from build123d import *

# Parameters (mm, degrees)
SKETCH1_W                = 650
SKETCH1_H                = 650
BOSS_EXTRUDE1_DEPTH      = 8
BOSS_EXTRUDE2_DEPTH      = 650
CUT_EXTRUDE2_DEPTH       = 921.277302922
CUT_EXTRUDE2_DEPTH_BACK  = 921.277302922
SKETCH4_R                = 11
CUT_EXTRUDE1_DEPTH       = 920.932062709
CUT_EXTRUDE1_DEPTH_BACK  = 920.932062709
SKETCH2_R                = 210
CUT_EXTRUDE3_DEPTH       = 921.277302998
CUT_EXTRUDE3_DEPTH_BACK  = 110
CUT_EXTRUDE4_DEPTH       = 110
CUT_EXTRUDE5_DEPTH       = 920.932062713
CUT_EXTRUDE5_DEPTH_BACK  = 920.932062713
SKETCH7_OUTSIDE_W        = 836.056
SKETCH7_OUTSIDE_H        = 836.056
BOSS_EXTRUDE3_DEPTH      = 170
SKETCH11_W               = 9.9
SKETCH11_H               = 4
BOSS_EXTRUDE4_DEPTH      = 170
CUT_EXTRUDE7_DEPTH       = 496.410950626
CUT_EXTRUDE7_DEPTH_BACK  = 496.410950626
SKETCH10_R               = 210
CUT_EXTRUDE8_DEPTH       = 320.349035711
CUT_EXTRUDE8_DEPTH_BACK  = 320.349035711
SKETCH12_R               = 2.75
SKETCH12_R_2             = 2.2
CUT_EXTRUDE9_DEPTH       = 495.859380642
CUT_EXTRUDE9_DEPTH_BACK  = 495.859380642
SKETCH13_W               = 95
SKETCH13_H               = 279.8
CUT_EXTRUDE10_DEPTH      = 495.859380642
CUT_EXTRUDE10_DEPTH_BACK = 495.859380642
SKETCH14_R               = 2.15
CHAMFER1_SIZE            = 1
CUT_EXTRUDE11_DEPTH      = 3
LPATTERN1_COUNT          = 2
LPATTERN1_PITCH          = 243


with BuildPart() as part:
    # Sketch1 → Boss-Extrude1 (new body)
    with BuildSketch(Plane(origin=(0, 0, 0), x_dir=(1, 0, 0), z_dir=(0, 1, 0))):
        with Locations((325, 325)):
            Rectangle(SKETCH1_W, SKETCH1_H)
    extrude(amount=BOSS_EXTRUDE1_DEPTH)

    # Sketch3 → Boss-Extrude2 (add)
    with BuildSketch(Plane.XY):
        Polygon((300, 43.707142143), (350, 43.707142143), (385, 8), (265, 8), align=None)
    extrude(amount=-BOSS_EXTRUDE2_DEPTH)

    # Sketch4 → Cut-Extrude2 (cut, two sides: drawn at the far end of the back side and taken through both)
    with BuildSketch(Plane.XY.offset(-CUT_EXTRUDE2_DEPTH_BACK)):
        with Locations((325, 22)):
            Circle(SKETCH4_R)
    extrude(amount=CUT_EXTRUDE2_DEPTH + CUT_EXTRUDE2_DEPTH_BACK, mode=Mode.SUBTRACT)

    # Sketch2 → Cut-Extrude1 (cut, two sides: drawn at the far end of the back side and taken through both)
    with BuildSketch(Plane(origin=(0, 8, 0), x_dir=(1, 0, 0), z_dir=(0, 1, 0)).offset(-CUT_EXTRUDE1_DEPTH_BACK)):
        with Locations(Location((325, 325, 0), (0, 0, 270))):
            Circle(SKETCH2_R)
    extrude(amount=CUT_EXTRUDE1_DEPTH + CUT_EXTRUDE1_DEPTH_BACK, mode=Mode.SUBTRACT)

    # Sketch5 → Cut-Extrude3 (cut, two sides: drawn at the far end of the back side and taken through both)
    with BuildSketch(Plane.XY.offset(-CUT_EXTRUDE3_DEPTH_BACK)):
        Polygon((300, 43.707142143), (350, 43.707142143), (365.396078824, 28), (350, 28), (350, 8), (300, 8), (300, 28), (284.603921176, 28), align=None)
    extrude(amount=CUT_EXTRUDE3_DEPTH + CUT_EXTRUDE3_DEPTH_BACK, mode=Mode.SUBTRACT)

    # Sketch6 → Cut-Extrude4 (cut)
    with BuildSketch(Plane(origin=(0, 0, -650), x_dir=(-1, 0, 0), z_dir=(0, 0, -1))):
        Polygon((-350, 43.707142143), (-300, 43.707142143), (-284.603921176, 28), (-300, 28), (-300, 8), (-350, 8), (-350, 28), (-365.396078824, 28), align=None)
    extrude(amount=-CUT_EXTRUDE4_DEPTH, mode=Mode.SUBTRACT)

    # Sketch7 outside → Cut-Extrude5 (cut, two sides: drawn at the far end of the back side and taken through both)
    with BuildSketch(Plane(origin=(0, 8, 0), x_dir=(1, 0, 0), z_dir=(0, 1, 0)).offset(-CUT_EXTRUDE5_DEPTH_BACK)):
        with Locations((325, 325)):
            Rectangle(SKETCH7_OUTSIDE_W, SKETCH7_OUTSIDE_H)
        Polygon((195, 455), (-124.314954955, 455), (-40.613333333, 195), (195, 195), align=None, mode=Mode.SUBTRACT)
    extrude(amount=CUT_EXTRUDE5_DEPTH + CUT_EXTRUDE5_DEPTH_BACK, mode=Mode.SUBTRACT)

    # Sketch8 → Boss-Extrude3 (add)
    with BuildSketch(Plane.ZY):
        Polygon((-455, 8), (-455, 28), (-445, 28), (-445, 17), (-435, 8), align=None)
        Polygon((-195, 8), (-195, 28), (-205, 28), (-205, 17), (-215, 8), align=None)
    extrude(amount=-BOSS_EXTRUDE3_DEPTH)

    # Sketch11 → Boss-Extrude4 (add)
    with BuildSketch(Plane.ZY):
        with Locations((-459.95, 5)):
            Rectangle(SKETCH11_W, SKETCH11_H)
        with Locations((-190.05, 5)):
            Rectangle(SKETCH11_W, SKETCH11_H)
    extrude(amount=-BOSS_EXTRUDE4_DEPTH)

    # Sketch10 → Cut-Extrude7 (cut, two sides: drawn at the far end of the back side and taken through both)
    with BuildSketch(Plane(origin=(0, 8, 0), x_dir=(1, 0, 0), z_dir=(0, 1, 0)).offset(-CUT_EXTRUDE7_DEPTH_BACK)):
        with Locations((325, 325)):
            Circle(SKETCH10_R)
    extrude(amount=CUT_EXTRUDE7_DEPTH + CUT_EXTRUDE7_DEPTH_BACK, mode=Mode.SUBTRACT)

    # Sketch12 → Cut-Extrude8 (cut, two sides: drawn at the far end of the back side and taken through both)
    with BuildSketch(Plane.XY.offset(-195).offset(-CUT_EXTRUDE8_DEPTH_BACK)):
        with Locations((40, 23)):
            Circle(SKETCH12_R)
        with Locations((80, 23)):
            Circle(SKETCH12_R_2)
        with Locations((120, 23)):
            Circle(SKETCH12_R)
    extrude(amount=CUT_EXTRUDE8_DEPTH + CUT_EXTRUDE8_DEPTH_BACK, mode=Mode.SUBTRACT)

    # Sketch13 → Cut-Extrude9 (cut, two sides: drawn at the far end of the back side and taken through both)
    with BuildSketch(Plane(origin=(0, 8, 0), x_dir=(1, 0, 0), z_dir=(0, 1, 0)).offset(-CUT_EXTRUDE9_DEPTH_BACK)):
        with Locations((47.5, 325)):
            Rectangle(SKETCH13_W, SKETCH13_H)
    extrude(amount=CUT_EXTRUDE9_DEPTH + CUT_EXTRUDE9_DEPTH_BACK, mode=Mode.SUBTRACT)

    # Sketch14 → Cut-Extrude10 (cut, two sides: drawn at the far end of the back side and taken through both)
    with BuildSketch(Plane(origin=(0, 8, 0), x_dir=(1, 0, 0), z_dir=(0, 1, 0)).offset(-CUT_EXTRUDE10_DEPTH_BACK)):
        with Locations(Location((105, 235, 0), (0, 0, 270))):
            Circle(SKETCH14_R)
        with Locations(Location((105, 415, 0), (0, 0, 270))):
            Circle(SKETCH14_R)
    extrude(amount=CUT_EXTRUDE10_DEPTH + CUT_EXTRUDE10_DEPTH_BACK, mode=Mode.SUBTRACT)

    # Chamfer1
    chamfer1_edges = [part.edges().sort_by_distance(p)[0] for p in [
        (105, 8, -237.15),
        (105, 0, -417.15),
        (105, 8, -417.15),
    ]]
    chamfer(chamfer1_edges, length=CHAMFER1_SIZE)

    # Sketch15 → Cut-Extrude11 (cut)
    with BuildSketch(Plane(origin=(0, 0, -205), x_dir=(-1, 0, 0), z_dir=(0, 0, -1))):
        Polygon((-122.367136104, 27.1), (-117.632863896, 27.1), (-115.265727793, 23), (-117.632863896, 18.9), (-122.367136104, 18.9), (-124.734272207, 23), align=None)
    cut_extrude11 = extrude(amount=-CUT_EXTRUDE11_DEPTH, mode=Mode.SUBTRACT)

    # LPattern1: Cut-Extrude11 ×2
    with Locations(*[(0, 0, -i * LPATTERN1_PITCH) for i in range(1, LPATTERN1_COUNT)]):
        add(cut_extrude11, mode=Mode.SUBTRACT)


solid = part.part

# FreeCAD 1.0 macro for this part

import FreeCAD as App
import Part
import Sketcher
Q = App.Units.Quantity


def edges_at(feature, points):
    """Names of the edges that pass closest to the given points."""
    edges = feature.Shape.Edges
    near = lambda p: min(range(len(edges)), key=lambda i: edges[i].distToShape(Part.Vertex(*p))[0])
    return sorted({f"Edge{near(p) + 1}" for p in points})


def add_polygon(sketch, points):
    """Adds a closed chain of lines whose ends are joined by coincident constraints."""
    first, n = sketch.GeometryCount, len(points)
    for a, b in zip(points, points[1:] + points[:1]):
        sketch.addGeometry(Part.LineSegment(App.Vector(*a, 0), App.Vector(*b, 0)), False)
    for i in range(n):
        sketch.addConstraint(Sketcher.Constraint("Coincident", first + i, 2, first + (i + 1) % n, 1))

doc = App.newDocument("Part")
params = doc.addObject("Spreadsheet::Sheet", "Params")
for row, (alias, value) in enumerate([
    ("sketch1_width", "650 mm"),
    ("pad1_length", "8 mm"),
    ("sketch2_width", "50 mm"),
    ("sketch2_width2", "120 mm"),
    ("sketch2_length", "50 mm"),
    ("pad2_length", "650 mm"),
    ("sketch3_diameter", "22 mm"),
    ("sketch4_diameter", "420 mm"),
    ("sketch5_width", "50 mm"),
    ("sketch5_height", "20 mm"),
    ("pocket3_length", "921.277303 mm"),
    ("pocket3_length2", "110 mm"),
    ("sketch6_width", "50 mm"),
    ("sketch6_height", "20 mm"),
    ("pocket4_length", "110 mm"),
    ("sketch7_height", "260 mm"),
    ("sketch8_width", "20 mm"),
    ("sketch8_width2", "11 mm"),
    ("sketch8_height", "10 mm"),
    ("pad3_length", "170 mm"),
    ("sketch9_width", "4 mm"),
    ("sketch9_height", "9.9 mm"),
    ("pad4_length", "170 mm"),
    ("sketch10_diameter", "420 mm"),
    ("sketch11_diameter", "5.5 mm"),
    ("sketch11_diameter2", "4.4 mm"),
    ("sketch12_width", "95 mm"),
    ("sketch12_height", "279.8 mm"),
    ("sketch13_diameter", "4.3 mm"),
    ("chamfer_size", "1 mm"),
    ("pocket10_length", "3 mm"),
    ("linearpattern_pitch", "243 mm"),
], start=1):
    params.set(f"A{row}", alias)
    params.set(f"B{row}", "=" + value)
    params.setAlias(f"B{row}", alias)

body = doc.addObject("PartDesign::Body", "Body")

sketch1 = doc.addObject("Sketcher::SketchObject", "Sketch")
body.addObject(sketch1)
sketch1.AttachmentSupport = (doc.XZ_Plane, [""])
sketch1.MapMode = "FlatFace"
add_polygon(sketch1, [(0, -650), (0, 0), (650, 0), (650, -650)])
sketch1.addConstraint([
    Sketcher.Constraint("Vertical", 0),
    Sketcher.Constraint("Horizontal", 1),
    Sketcher.Constraint("Vertical", 2),
    Sketcher.Constraint("Horizontal", 3),
    Sketcher.Constraint("Coincident", 0, 2, -1, 1),
    Sketcher.Constraint("Equal", 3, 0),
    Sketcher.Constraint("DistanceX", 1, 1, 1, 2, Q("650 mm")),
])
sketch1.setExpression("Constraints[10]", "Params.sketch1_width")
pad1 = doc.addObject("PartDesign::Pad", "Pad")
body.addObject(pad1)
pad1.Profile = sketch1
pad1.setExpression("Length", "Params.pad1_length")
pad1.Reversed = True

sketch2 = doc.addObject("Sketcher::SketchObject", "Sketch001")
body.addObject(sketch2)
sketch2.AttachmentSupport = (doc.XY_Plane, [""])
sketch2.MapMode = "FlatFace"
add_polygon(sketch2, [(350, 44), (300, 44), (265, 8), (385, 8)])
sketch2.addConstraint([
    Sketcher.Constraint("Horizontal", 0),
    Sketcher.Constraint("Horizontal", 2),
    Sketcher.Constraint("Equal", 1, 3),
    Sketcher.Constraint("DistanceX", 0, 2, 0, 1, Q("50 mm")),
    Sketcher.Constraint("DistanceX", 2, 1, 2, 2, Q("120 mm")),
    Sketcher.Constraint("Distance", 1, Q("50 mm")),
    Sketcher.Constraint("DistanceX", -1, 1, 0, 2, Q("300 mm")),
    Sketcher.Constraint("DistanceY", -1, 1, 1, 2, Q("8 mm")),
])
sketch2.setExpression("Constraints[7]", "Params.sketch2_width")
sketch2.setExpression("Constraints[8]", "Params.sketch2_width2")
sketch2.setExpression("Constraints[9]", "Params.sketch2_length")
pad2 = doc.addObject("PartDesign::Pad", "Pad001")
body.addObject(pad2)
pad2.Profile = sketch2
pad2.setExpression("Length", "Params.pad2_length")
pad2.Reversed = True

sketch3 = doc.addObject("Sketcher::SketchObject", "Sketch002")
body.addObject(sketch3)
sketch3.AttachmentSupport = (doc.XY_Plane, [""])
sketch3.MapMode = "FlatFace"
sketch3.addGeometry(Part.Circle(App.Vector(325, 22, 0), App.Vector(0, 0, 1), 11), False)
sketch3.addConstraint([
    Sketcher.Constraint("Diameter", 0, Q("22 mm")),
    Sketcher.Constraint("DistanceX", -1, 1, 0, 3, Q("325 mm")),
    Sketcher.Constraint("DistanceY", -1, 1, 0, 3, Q("22 mm")),
])
sketch3.setExpression("Constraints[0]", "Params.sketch3_diameter")
pocket1 = doc.addObject("PartDesign::Pocket", "Pocket")
body.addObject(pocket1)
pocket1.Profile = sketch3
pocket1.Type = "ThroughAll"
pocket1.Midplane = True

sketch4 = doc.addObject("Sketcher::SketchObject", "Sketch003")
body.addObject(sketch4)
sketch4.AttachmentSupport = (doc.XZ_Plane, [""])
sketch4.MapMode = "FlatFace"
sketch4.AttachmentOffset = App.Placement(App.Vector(0, 0, -8), App.Rotation())
sketch4.addGeometry(Part.Circle(App.Vector(325, -325, 0), App.Vector(0, 0, 1), 210), False)
sketch4.addConstraint([
    Sketcher.Constraint("Diameter", 0, Q("420 mm")),
    Sketcher.Constraint("DistanceX", -1, 1, 0, 3, Q("325 mm")),
    Sketcher.Constraint("DistanceY", 0, 3, -1, 1, Q("325 mm")),
])
sketch4.setExpression("Constraints[0]", "Params.sketch4_diameter")
pocket2 = doc.addObject("PartDesign::Pocket", "Pocket001")
body.addObject(pocket2)
pocket2.Profile = sketch4
pocket2.Type = "ThroughAll"
pocket2.Midplane = True

sketch5 = doc.addObject("Sketcher::SketchObject", "Sketch004")
body.addObject(sketch5)
sketch5.AttachmentSupport = (doc.XY_Plane, [""])
sketch5.MapMode = "FlatFace"
add_polygon(sketch5, [(350, 44), (300, 44), (285, 28), (300, 28), (300, 8), (350, 8), (350, 28), (365, 28)])
sketch5.addConstraint([
    Sketcher.Constraint("Horizontal", 0),
    Sketcher.Constraint("Horizontal", 2),
    Sketcher.Constraint("Vertical", 3),
    Sketcher.Constraint("Horizontal", 4),
    Sketcher.Constraint("Vertical", 5),
    Sketcher.Constraint("Horizontal", 6),
    Sketcher.Constraint("Horizontal", 2, 2, 5, 2),
    Sketcher.Constraint("Vertical", 0, 2, 2, 2),
    Sketcher.Constraint("Vertical", 5, 2, 7, 2),
    Sketcher.Constraint("Equal", 2, 6),
    Sketcher.Constraint("DistanceX", 0, 2, 0, 1, Q("50 mm")),
    Sketcher.Constraint("DistanceY", 3, 2, 3, 1, Q("20 mm")),
    Sketcher.Constraint("DistanceX", -1, 1, 0, 2, Q("300 mm")),
    Sketcher.Constraint("DistanceY", -1, 1, 1, 2, Q("28 mm")),
    Sketcher.Constraint("Distance", 1, Q("21.994398 mm")),
    Sketcher.Constraint("DistanceX", 2, 1, 2, 2, Q("15.396079 mm")),
])
sketch5.setExpression("Constraints[18]", "Params.sketch5_width")
sketch5.setExpression("Constraints[19]", "Params.sketch5_height")
pocket3 = doc.addObject("PartDesign::Pocket", "Pocket002")
body.addObject(pocket3)
pocket3.Profile = sketch5
pocket3.Type = "TwoLengths"
pocket3.setExpression("Length", "Params.pocket3_length")
pocket3.setExpression("Length2", "Params.pocket3_length2")
pocket3.Reversed = True

sketch6 = doc.addObject("Sketcher::SketchObject", "Sketch005")
body.addObject(sketch6)
sketch6.AttachmentSupport = (doc.XY_Plane, [""])
sketch6.MapMode = "FlatFace"
sketch6.AttachmentOffset = App.Placement(App.Vector(0, 0, -650), App.Rotation())
add_polygon(sketch6, [(300, 44), (350, 44), (365, 28), (350, 28), (350, 8), (300, 8), (300, 28), (285, 28)])
sketch6.addConstraint([
    Sketcher.Constraint("Horizontal", 0),
    Sketcher.Constraint("Horizontal", 2),
    Sketcher.Constraint("Vertical", 3),
    Sketcher.Constraint("Horizontal", 4),
    Sketcher.Constraint("Vertical", 5),
    Sketcher.Constraint("Horizontal", 6),
    Sketcher.Constraint("Horizontal", 2, 2, 5, 2),
    Sketcher.Constraint("Vertical", 0, 2, 2, 2),
    Sketcher.Constraint("Vertical", 5, 2, 7, 2),
    Sketcher.Constraint("Equal", 2, 6),
    Sketcher.Constraint("DistanceX", 0, 1, 0, 2, Q("50 mm")),
    Sketcher.Constraint("DistanceY", 3, 2, 3, 1, Q("20 mm")),
    Sketcher.Constraint("DistanceX", -1, 1, 0, 2, Q("350 mm")),
    Sketcher.Constraint("DistanceY", -1, 1, 1, 2, Q("28 mm")),
    Sketcher.Constraint("Distance", 1, Q("21.994398 mm")),
    Sketcher.Constraint("DistanceX", 2, 2, 2, 1, Q("15.396079 mm")),
])
sketch6.setExpression("Constraints[18]", "Params.sketch6_width")
sketch6.setExpression("Constraints[19]", "Params.sketch6_height")
pocket4 = doc.addObject("PartDesign::Pocket", "Pocket003")
body.addObject(pocket4)
pocket4.Profile = sketch6
pocket4.setExpression("Length", "Params.pocket4_length")
pocket4.Reversed = True

sketch7 = doc.addObject("Sketcher::SketchObject", "Sketch006")
body.addObject(sketch7)
sketch7.AttachmentSupport = (doc.XZ_Plane, [""])
sketch7.MapMode = "FlatFace"
sketch7.AttachmentOffset = App.Placement(App.Vector(0, 0, -8), App.Rotation())
add_polygon(sketch7, [(-93, -358), (-93, 93), (743, 93), (743, -743), (-93, -743), (-93, -455), (195, -455), (195, -195), (-41, -195)])
sketch7.addConstraint([
    Sketcher.Constraint("Vertical", 0),
    Sketcher.Constraint("Horizontal", 1),
    Sketcher.Constraint("Vertical", 2),
    Sketcher.Constraint("Horizontal", 3),
    Sketcher.Constraint("Vertical", 4),
    Sketcher.Constraint("Horizontal", 5),
    Sketcher.Constraint("Vertical", 6),
    Sketcher.Constraint("Horizontal", 7),
    Sketcher.Constraint("Vertical", 0, 2, 3, 2),
    Sketcher.Constraint("Equal", 3, 2),
    Sketcher.Constraint("Equal", 5, 4),
    Sketcher.Constraint("DistanceY", 6, 1, 6, 2, Q("260 mm")),
    Sketcher.Constraint("DistanceY", 4, 2, -1, 1, Q("455 mm")),
    Sketcher.Constraint("DistanceX", -1, 1, 5, 2, Q("195 mm")),
    Sketcher.Constraint("DistanceX", 1, 1, 1, 2, Q("836.056 mm")),
    Sketcher.Constraint("DistanceX", 5, 1, 5, 2, Q("288.028 mm")),
    Sketcher.Constraint("DistanceY", 0, 1, 0, 2, Q("450.842209 mm")),
    Sketcher.Constraint("DistanceX", 7, 2, 7, 1, Q("235.613333 mm")),
])
sketch7.setExpression("Constraints[20]", "Params.sketch7_height")
pocket5 = doc.addObject("PartDesign::Pocket", "Pocket004")
body.addObject(pocket5)
pocket5.Profile = sketch7
pocket5.Type = "ThroughAll"
pocket5.Midplane = True

sketch8 = doc.addObject("Sketcher::SketchObject", "Sketch007")
body.addObject(sketch8)
sketch8.AttachmentSupport = (doc.YZ_Plane, [""])
sketch8.MapMode = "FlatFace"
add_polygon(sketch8, [(28, -455), (8, -455), (8, -435), (17, -445), (28, -445)])
add_polygon(sketch8, [(8, -195), (28, -195), (28, -205), (17, -205), (8, -215)])
sketch8.addConstraint([
    Sketcher.Constraint("Horizontal", 0),
    Sketcher.Constraint("Vertical", 1),
    Sketcher.Constraint("Horizontal", 3),
    Sketcher.Constraint("Vertical", 4),
    Sketcher.Constraint("Horizontal", 5),
    Sketcher.Constraint("Vertical", 6),
    Sketcher.Constraint("Horizontal", 7),
    Sketcher.Constraint("Vertical", 9),
    Sketcher.Constraint("Vertical", 4, 2, 5, 2),
    Sketcher.Constraint("Vertical", 2, 2, 7, 2),
    Sketcher.Constraint("Vertical", 1, 2, 8, 2),
    Sketcher.Constraint("Equal", 5, 1),
    Sketcher.Constraint("Equal", 4, 6),
    Sketcher.Constraint("Equal", 1, 9),
    Sketcher.Constraint("DistanceX", 0, 2, 0, 1, Q("20 mm")),
    Sketcher.Constraint("DistanceX", 3, 1, 3, 2, Q("11 mm")),
    Sketcher.Constraint("DistanceY", 4, 2, 4, 1, Q("10 mm")),
    Sketcher.Constraint("DistanceX", -1, 1, 0, 2, Q("8 mm")),
    Sketcher.Constraint("DistanceY", 0, 2, -1, 1, Q("455 mm")),
    Sketcher.Constraint("DistanceY", 5, 2, -1, 1, Q("195 mm")),
])
sketch8.setExpression("Constraints[24]", "Params.sketch8_width")
sketch8.setExpression("Constraints[25]", "Params.sketch8_width2")
sketch8.setExpression("Constraints[26]", "Params.sketch8_height")
pad3 = doc.addObject("PartDesign::Pad", "Pad002")
body.addObject(pad3)
pad3.Profile = sketch8
pad3.setExpression("Length", "Params.pad3_length")

sketch9 = doc.addObject("Sketcher::SketchObject", "Sketch008")
body.addObject(sketch9)
sketch9.AttachmentSupport = (doc.YZ_Plane, [""])
sketch9.MapMode = "FlatFace"
add_polygon(sketch9, [(7, -464.9), (3, -464.9), (3, -455), (7, -455)])
add_polygon(sketch9, [(7, -195), (3, -195), (3, -185.1), (7, -185.1)])
sketch9.addConstraint([
    Sketcher.Constraint("Horizontal", 0),
    Sketcher.Constraint("Vertical", 1),
    Sketcher.Constraint("Horizontal", 2),
    Sketcher.Constraint("Vertical", 3),
    Sketcher.Constraint("Horizontal", 4),
    Sketcher.Constraint("Vertical", 5),
    Sketcher.Constraint("Horizontal", 6),
    Sketcher.Constraint("Vertical", 7),
    Sketcher.Constraint("Vertical", 1, 2, 4, 2),
    Sketcher.Constraint("Vertical", 3, 2, 6, 2),
    Sketcher.Constraint("Equal", 3, 5),
    Sketcher.Constraint("DistanceX", 0, 2, 0, 1, Q("4 mm")),
    Sketcher.Constraint("DistanceY", 1, 1, 1, 2, Q("9.9 mm")),
    Sketcher.Constraint("DistanceX", -1, 1, 0, 2, Q("3 mm")),
    Sketcher.Constraint("DistanceY", 1, 2, -1, 1, Q("455 mm")),
    Sketcher.Constraint("DistanceY", 4, 2, -1, 1, Q("195 mm")),
])
sketch9.setExpression("Constraints[19]", "Params.sketch9_width")
sketch9.setExpression("Constraints[20]", "Params.sketch9_height")
pad4 = doc.addObject("PartDesign::Pad", "Pad003")
body.addObject(pad4)
pad4.Profile = sketch9
pad4.setExpression("Length", "Params.pad4_length")

sketch10 = doc.addObject("Sketcher::SketchObject", "Sketch009")
body.addObject(sketch10)
sketch10.AttachmentSupport = (doc.XZ_Plane, [""])
sketch10.MapMode = "FlatFace"
sketch10.AttachmentOffset = App.Placement(App.Vector(0, 0, -8), App.Rotation())
sketch10.addGeometry(Part.Circle(App.Vector(325, -325, 0), App.Vector(0, 0, 1), 210), False)
sketch10.addConstraint([
    Sketcher.Constraint("Diameter", 0, Q("420 mm")),
    Sketcher.Constraint("DistanceX", -1, 1, 0, 3, Q("325 mm")),
    Sketcher.Constraint("DistanceY", 0, 3, -1, 1, Q("325 mm")),
])
sketch10.setExpression("Constraints[0]", "Params.sketch10_diameter")
pocket6 = doc.addObject("PartDesign::Pocket", "Pocket005")
body.addObject(pocket6)
pocket6.Profile = sketch10
pocket6.Type = "ThroughAll"
pocket6.Midplane = True

sketch11 = doc.addObject("Sketcher::SketchObject", "Sketch010")
body.addObject(sketch11)
sketch11.AttachmentSupport = (doc.XY_Plane, [""])
sketch11.MapMode = "FlatFace"
sketch11.AttachmentOffset = App.Placement(App.Vector(0, 0, -195), App.Rotation())
sketch11.addGeometry([
    Part.Circle(App.Vector(40, 23, 0), App.Vector(0, 0, 1), 2.8),
    Part.Circle(App.Vector(80, 23, 0), App.Vector(0, 0, 1), 2.2),
    Part.Circle(App.Vector(120, 23, 0), App.Vector(0, 0, 1), 2.8),
], False)
sketch11.addConstraint([
    Sketcher.Constraint("Equal", 0, 2),
    Sketcher.Constraint("Horizontal", 0, 3, 1, 3),
    Sketcher.Constraint("Horizontal", 1, 3, 2, 3),
    Sketcher.Constraint("Diameter", 0, Q("5.5 mm")),
    Sketcher.Constraint("Diameter", 1, Q("4.4 mm")),
    Sketcher.Constraint("DistanceX", -1, 1, 0, 3, Q("40 mm")),
    Sketcher.Constraint("DistanceY", -1, 1, 0, 3, Q("23 mm")),
    Sketcher.Constraint("DistanceX", -1, 1, 1, 3, Q("80 mm")),
    Sketcher.Constraint("DistanceX", -1, 1, 2, 3, Q("120 mm")),
])
sketch11.setExpression("Constraints[3]", "Params.sketch11_diameter")
sketch11.setExpression("Constraints[4]", "Params.sketch11_diameter2")
pocket7 = doc.addObject("PartDesign::Pocket", "Pocket006")
body.addObject(pocket7)
pocket7.Profile = sketch11
pocket7.Type = "ThroughAll"
pocket7.Midplane = True

sketch12 = doc.addObject("Sketcher::SketchObject", "Sketch011")
body.addObject(sketch12)
sketch12.AttachmentSupport = (doc.XZ_Plane, [""])
sketch12.MapMode = "FlatFace"
sketch12.AttachmentOffset = App.Placement(App.Vector(0, 0, -8), App.Rotation())
add_polygon(sketch12, [(0, -465), (0, -185), (95, -185), (95, -465)])
sketch12.addConstraint([
    Sketcher.Constraint("Vertical", 0),
    Sketcher.Constraint("Horizontal", 1),
    Sketcher.Constraint("Vertical", 2),
    Sketcher.Constraint("Horizontal", 3),
    Sketcher.Constraint("PointOnObject", 0, 2, -2),
    Sketcher.Constraint("DistanceX", 1, 1, 1, 2, Q("95 mm")),
    Sketcher.Constraint("DistanceY", 0, 1, 0, 2, Q("279.8 mm")),
    Sketcher.Constraint("DistanceY", 0, 2, -1, 1, Q("185.1 mm")),
])
sketch12.setExpression("Constraints[9]", "Params.sketch12_width")
sketch12.setExpression("Constraints[10]", "Params.sketch12_height")
pocket8 = doc.addObject("PartDesign::Pocket", "Pocket007")
body.addObject(pocket8)
pocket8.Profile = sketch12
pocket8.Type = "ThroughAll"
pocket8.Midplane = True

sketch13 = doc.addObject("Sketcher::SketchObject", "Sketch012")
body.addObject(sketch13)
sketch13.AttachmentSupport = (doc.XZ_Plane, [""])
sketch13.MapMode = "FlatFace"
sketch13.AttachmentOffset = App.Placement(App.Vector(0, 0, -8), App.Rotation())
sketch13.addGeometry([
    Part.Circle(App.Vector(105, -235, 0), App.Vector(0, 0, 1), 2.1),
    Part.Circle(App.Vector(105, -415, 0), App.Vector(0, 0, 1), 2.1),
], False)
sketch13.addConstraint([
    Sketcher.Constraint("Equal", 0, 1),
    Sketcher.Constraint("Vertical", 0, 3, 1, 3),
    Sketcher.Constraint("Diameter", 0, Q("4.3 mm")),
    Sketcher.Constraint("DistanceX", -1, 1, 0, 3, Q("105 mm")),
    Sketcher.Constraint("DistanceY", 0, 3, -1, 1, Q("235 mm")),
    Sketcher.Constraint("DistanceY", 1, 3, -1, 1, Q("415 mm")),
])
sketch13.setExpression("Constraints[2]", "Params.sketch13_diameter")
pocket9 = doc.addObject("PartDesign::Pocket", "Pocket008")
body.addObject(pocket9)
pocket9.Profile = sketch13
pocket9.Type = "ThroughAll"
pocket9.Midplane = True
doc.recompute()

chamfer = doc.addObject("PartDesign::Chamfer", "Chamfer")
body.addObject(chamfer)
chamfer.Base = (pocket9, edges_at(pocket9, [(105, 8, -237.15), (105, 0, -417.15), (105, 8, -417.15)]))
chamfer.setExpression("Size", "Params.chamfer_size")

sketch14 = doc.addObject("Sketcher::SketchObject", "Sketch013")
body.addObject(sketch14)
sketch14.AttachmentSupport = (doc.XY_Plane, [""])
sketch14.MapMode = "FlatFace"
sketch14.AttachmentOffset = App.Placement(App.Vector(0, 0, -205), App.Rotation())
add_polygon(sketch14, [(117.6, 27.1), (122.4, 27.1), (124.7, 23), (122.4, 18.9), (117.6, 18.9), (115.3, 23)])
sketch14.addConstraint([
    Sketcher.Constraint("Horizontal", 0),
    Sketcher.Constraint("Horizontal", 3),
    Sketcher.Constraint("Parallel", 1, 4),
    Sketcher.Constraint("Parallel", 2, 5),
    Sketcher.Constraint("Horizontal", 1, 2, 4, 2),
    Sketcher.Constraint("Vertical", 0, 2, 2, 2),
    Sketcher.Constraint("Vertical", 3, 2, 5, 2),
    Sketcher.Constraint("Angle", 1, Q("-60 deg")),
    Sketcher.Constraint("DistanceY", -1, 1, 1, 2, Q("23 mm")),
    Sketcher.Constraint("DistanceY", -1, 1, 0, 2, Q("27.1 mm")),
    Sketcher.Constraint("DistanceX", 0, 1, 0, 2, Q("4.734272 mm")),
    Sketcher.Constraint("DistanceX", -1, 1, 0, 2, Q("122.367136 mm")),
])
pocket10 = doc.addObject("PartDesign::Pocket", "Pocket009")
body.addObject(pocket10)
pocket10.Profile = sketch14
pocket10.setExpression("Length", "Params.pocket10_length")
pocket10.Reversed = True
doc.recompute()

linearpattern = doc.addObject("PartDesign::LinearPattern", "LinearPattern")
body.addObject(linearpattern)
linearpattern.Originals = [pocket10]
linearpattern.Direction = (doc.Z_Axis, [""])
linearpattern.Mode = "offset"
linearpattern.setExpression("Offset", "Params.linearpattern_pitch")
linearpattern.Occurrences = 2
linearpattern.Reversed = True
body.Tip = linearpattern

doc.recompute()
